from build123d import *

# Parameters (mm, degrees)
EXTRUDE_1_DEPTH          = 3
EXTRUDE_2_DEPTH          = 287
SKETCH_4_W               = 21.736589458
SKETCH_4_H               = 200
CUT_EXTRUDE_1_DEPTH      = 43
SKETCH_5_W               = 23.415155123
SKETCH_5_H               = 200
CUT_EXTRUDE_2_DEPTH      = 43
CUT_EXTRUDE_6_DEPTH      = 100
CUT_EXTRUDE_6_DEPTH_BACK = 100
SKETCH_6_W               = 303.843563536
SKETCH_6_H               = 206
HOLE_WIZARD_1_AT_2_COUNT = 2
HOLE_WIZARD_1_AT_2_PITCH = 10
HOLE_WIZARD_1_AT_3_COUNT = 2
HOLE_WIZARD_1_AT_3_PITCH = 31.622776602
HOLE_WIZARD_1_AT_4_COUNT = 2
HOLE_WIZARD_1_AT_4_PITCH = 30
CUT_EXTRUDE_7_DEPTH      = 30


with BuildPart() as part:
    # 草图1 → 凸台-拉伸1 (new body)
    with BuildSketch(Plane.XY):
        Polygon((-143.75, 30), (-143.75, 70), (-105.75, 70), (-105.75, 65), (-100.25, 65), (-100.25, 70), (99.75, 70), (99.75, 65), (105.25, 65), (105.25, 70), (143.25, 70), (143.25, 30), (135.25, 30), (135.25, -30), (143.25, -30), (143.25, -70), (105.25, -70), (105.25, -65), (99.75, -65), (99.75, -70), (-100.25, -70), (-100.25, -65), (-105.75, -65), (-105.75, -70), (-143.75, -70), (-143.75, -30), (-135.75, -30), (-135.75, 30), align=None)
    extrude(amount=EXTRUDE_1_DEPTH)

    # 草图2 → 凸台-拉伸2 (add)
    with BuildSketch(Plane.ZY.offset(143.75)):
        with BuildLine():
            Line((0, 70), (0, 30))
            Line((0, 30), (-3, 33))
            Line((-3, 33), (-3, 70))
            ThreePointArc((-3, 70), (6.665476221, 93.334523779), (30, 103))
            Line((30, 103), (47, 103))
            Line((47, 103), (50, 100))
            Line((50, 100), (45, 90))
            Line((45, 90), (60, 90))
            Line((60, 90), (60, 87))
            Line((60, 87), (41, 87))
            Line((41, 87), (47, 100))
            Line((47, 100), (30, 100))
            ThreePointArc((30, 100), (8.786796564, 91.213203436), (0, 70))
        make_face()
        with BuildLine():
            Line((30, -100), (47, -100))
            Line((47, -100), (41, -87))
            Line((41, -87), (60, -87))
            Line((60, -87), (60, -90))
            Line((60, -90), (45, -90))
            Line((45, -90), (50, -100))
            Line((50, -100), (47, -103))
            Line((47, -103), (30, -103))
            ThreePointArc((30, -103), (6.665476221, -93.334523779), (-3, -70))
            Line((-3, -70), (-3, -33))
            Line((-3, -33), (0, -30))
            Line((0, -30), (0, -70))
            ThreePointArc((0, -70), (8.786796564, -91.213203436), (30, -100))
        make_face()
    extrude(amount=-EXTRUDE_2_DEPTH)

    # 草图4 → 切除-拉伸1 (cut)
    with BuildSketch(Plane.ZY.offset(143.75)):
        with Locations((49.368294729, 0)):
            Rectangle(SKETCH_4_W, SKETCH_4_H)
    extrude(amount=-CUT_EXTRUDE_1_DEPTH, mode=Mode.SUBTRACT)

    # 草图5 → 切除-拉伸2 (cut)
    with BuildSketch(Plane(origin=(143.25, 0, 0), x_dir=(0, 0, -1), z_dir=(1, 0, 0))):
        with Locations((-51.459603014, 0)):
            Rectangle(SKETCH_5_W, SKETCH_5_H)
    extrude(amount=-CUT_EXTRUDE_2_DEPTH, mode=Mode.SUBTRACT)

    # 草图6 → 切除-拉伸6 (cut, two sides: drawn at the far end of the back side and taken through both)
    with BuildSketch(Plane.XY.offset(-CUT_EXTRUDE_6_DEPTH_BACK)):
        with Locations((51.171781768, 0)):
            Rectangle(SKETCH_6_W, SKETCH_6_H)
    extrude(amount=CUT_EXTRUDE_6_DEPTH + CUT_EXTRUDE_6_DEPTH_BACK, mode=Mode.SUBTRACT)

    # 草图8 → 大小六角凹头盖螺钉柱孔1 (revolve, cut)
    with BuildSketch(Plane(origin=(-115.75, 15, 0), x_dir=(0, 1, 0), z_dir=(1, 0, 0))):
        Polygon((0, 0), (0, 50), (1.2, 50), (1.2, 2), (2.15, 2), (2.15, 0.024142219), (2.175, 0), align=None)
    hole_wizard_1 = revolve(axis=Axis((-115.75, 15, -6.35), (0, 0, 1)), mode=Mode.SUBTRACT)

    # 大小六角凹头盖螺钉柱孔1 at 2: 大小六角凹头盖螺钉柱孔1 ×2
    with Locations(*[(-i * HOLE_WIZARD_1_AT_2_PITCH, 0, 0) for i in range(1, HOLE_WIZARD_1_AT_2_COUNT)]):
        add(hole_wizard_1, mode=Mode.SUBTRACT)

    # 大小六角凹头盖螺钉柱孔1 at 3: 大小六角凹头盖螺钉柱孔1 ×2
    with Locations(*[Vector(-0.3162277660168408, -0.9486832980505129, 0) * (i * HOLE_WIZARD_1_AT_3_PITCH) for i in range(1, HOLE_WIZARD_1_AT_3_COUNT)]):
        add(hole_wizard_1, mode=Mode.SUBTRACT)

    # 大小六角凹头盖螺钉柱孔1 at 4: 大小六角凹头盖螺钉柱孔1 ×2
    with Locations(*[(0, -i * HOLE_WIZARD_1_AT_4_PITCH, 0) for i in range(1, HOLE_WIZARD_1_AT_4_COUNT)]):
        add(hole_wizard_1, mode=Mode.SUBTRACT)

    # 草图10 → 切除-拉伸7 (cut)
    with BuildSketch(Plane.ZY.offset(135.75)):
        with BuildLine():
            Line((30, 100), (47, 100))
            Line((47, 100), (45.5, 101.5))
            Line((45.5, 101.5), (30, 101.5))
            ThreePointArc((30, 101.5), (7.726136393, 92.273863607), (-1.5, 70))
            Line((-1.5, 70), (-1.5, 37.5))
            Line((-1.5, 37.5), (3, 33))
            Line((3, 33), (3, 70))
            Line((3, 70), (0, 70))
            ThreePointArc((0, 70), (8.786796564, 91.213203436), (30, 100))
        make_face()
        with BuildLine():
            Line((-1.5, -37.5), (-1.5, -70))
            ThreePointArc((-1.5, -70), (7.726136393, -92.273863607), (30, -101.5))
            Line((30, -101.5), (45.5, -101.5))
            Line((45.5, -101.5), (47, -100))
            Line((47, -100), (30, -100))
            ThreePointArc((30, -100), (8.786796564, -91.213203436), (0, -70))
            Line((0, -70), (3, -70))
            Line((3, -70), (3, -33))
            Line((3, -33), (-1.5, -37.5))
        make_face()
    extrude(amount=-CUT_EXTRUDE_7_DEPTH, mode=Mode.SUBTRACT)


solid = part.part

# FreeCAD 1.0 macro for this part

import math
import FreeCAD as App
import Part
import Sketcher

V = App.Vector
Q = App.Units.Quantity

doc = App.newDocument("Part")
params = doc.addObject("Spreadsheet::Sheet", "Params")
for row, (alias, value) in enumerate([
    ("sketch1_width", "8 mm"),
    ("sketch1_width2", "38 mm"),
    ("sketch1_width3", "200 mm"),
    ("sketch1_height", "40 mm"),
    ("sketch1_height2", "60 mm"),
    ("pad1_length", "3 mm"),
    ("sketch2_radius", "30 mm"),
    ("sketch2_radius2", "33 mm"),
    ("sketch2_width", "40 mm"),
    ("sketch2_width2", "3 mm"),
    ("sketch2_height", "17 mm"),
    ("pad2_length", "287 mm"),
    ("sketch3_width", "200 mm"),
    ("pocket1_length", "43 mm"),
    ("sketch4_width", "200 mm"),
    ("pocket2_length", "43 mm"),
    ("sketch5_height", "206 mm"),
    ("sketch6_height", "50 mm"),
    ("sketch6_height2", "48 mm"),
    ("sketch6_width", "1.2 mm"),
    ("sketch6_width2", "0.95 mm"),
    ("groove_angle", "360 deg"),
    ("linearpattern_pitch", "10 mm"),
    ("linearpattern2_pitch", "31.622777 mm"),
    ("linearpattern3_pitch", "30 mm"),
    ("sketch7_radius", "30 mm"),
    ("sketch7_radius2", "31.5 mm"),
    ("sketch7_width", "37 mm"),
    ("sketch7_height", "17 mm"),
    ("sketch7_height2", "3 mm"),
    ("pocket4_length", "30 mm"),
], start=1):
    params.set(f"A{row}", alias)
    params.set(f"B{row}", "=" + value)
    params.setAlias(f"B{row}", alias)

body = doc.addObject("PartDesign::Body", "Body")

# Sketch on XY plane
sketch1 = doc.addObject("Sketcher::SketchObject", "Sketch")
body.addObject(sketch1)
sketch1.AttachmentSupport = (doc.XY_Plane, [""])
sketch1.MapMode = "FlatFace"
sketch1.addGeometry([
    Part.LineSegment(V(-143.75, 70, 0), V(-143.75, 30, 0)),  # 0
    Part.LineSegment(V(-143.75, 30, 0), V(-135.75, 30, 0)),  # 1
    Part.LineSegment(V(-135.75, 30, 0), V(-135.75, -30, 0)),  # 2
    Part.LineSegment(V(-135.75, -30, 0), V(-143.75, -30, 0)),  # 3
    Part.LineSegment(V(-143.75, -30, 0), V(-143.75, -70, 0)),  # 4
    Part.LineSegment(V(-143.75, -70, 0), V(-105.75, -70, 0)),  # 5
    Part.LineSegment(V(-105.75, -70, 0), V(-105.75, -65, 0)),  # 6
    Part.LineSegment(V(-105.75, -65, 0), V(-100.25, -65, 0)),  # 7
    Part.LineSegment(V(-100.25, -65, 0), V(-100.25, -70, 0)),  # 8
    Part.LineSegment(V(-100.25, -70, 0), V(99.75, -70, 0)),  # 9
    Part.LineSegment(V(99.75, -70, 0), V(99.75, -65, 0)),  # 10
    Part.LineSegment(V(99.75, -65, 0), V(105.25, -65, 0)),  # 11
    Part.LineSegment(V(105.25, -65, 0), V(105.25, -70, 0)),  # 12
    Part.LineSegment(V(105.25, -70, 0), V(143.25, -70, 0)),  # 13
    Part.LineSegment(V(143.25, -70, 0), V(143.25, -30, 0)),  # 14
    Part.LineSegment(V(143.25, -30, 0), V(135.25, -30, 0)),  # 15
    Part.LineSegment(V(135.25, -30, 0), V(135.25, 30, 0)),  # 16
    Part.LineSegment(V(135.25, 30, 0), V(143.25, 30, 0)),  # 17
    Part.LineSegment(V(143.25, 30, 0), V(143.25, 70, 0)),  # 18
    Part.LineSegment(V(143.25, 70, 0), V(105.25, 70, 0)),  # 19
    Part.LineSegment(V(105.25, 70, 0), V(105.25, 65, 0)),  # 20
    Part.LineSegment(V(105.25, 65, 0), V(99.75, 65, 0)),  # 21
    Part.LineSegment(V(99.75, 65, 0), V(99.75, 70, 0)),  # 22
    Part.LineSegment(V(99.75, 70, 0), V(-100.25, 70, 0)),  # 23
    Part.LineSegment(V(-100.25, 70, 0), V(-100.25, 65, 0)),  # 24
    Part.LineSegment(V(-100.25, 65, 0), V(-105.75, 65, 0)),  # 25
    Part.LineSegment(V(-105.75, 65, 0), V(-105.75, 70, 0)),  # 26
    Part.LineSegment(V(-105.75, 70, 0), V(-143.75, 70, 0)),  # 27
], False)
sketch1.addConstraint([
    Sketcher.Constraint("Coincident", 0, 2, 1, 1),
    Sketcher.Constraint("Coincident", 1, 2, 2, 1),
    Sketcher.Constraint("Coincident", 2, 2, 3, 1),
    Sketcher.Constraint("Coincident", 3, 2, 4, 1),
    Sketcher.Constraint("Coincident", 4, 2, 5, 1),
    Sketcher.Constraint("Coincident", 5, 2, 6, 1),
    Sketcher.Constraint("Coincident", 6, 2, 7, 1),
    Sketcher.Constraint("Coincident", 7, 2, 8, 1),
    Sketcher.Constraint("Coincident", 8, 2, 9, 1),
    Sketcher.Constraint("Coincident", 9, 2, 10, 1),
    Sketcher.Constraint("Coincident", 10, 2, 11, 1),
    Sketcher.Constraint("Coincident", 11, 2, 12, 1),
    Sketcher.Constraint("Coincident", 12, 2, 13, 1),
    Sketcher.Constraint("Coincident", 13, 2, 14, 1),
    Sketcher.Constraint("Coincident", 14, 2, 15, 1),
    Sketcher.Constraint("Coincident", 15, 2, 16, 1),
    Sketcher.Constraint("Coincident", 16, 2, 17, 1),
    Sketcher.Constraint("Coincident", 17, 2, 18, 1),
    Sketcher.Constraint("Coincident", 18, 2, 19, 1),
    Sketcher.Constraint("Coincident", 19, 2, 20, 1),
    Sketcher.Constraint("Coincident", 20, 2, 21, 1),
    Sketcher.Constraint("Coincident", 21, 2, 22, 1),
    Sketcher.Constraint("Coincident", 22, 2, 23, 1),
    Sketcher.Constraint("Coincident", 23, 2, 24, 1),
    Sketcher.Constraint("Coincident", 24, 2, 25, 1),
    Sketcher.Constraint("Coincident", 25, 2, 26, 1),
    Sketcher.Constraint("Coincident", 26, 2, 27, 1),
    Sketcher.Constraint("Coincident", 27, 2, 0, 1),
    Sketcher.Constraint("Vertical", 0),
    Sketcher.Constraint("Horizontal", 1),
    Sketcher.Constraint("Vertical", 2),
    Sketcher.Constraint("Horizontal", 3),
    Sketcher.Constraint("Vertical", 4),
    Sketcher.Constraint("Horizontal", 5),
    Sketcher.Constraint("Vertical", 6),
    Sketcher.Constraint("Horizontal", 7),
    Sketcher.Constraint("Vertical", 8),
    Sketcher.Constraint("Horizontal", 9),
    Sketcher.Constraint("Vertical", 10),
    Sketcher.Constraint("Horizontal", 11),
    Sketcher.Constraint("Vertical", 12),
    Sketcher.Constraint("Horizontal", 13),
    Sketcher.Constraint("Vertical", 14),
    Sketcher.Constraint("Horizontal", 15),
    Sketcher.Constraint("Vertical", 16),
    Sketcher.Constraint("Horizontal", 17),
    Sketcher.Constraint("Vertical", 18),
    Sketcher.Constraint("Horizontal", 19),
    Sketcher.Constraint("Vertical", 20),
    Sketcher.Constraint("Horizontal", 21),
    Sketcher.Constraint("Vertical", 22),
    Sketcher.Constraint("Horizontal", 23),
    Sketcher.Constraint("Vertical", 24),
    Sketcher.Constraint("Horizontal", 25),
    Sketcher.Constraint("Vertical", 26),
    Sketcher.Constraint("Horizontal", 27),
    Sketcher.Constraint("Symmetric", 0, 2, 3, 2, -1),
    Sketcher.Constraint("Symmetric", 14, 2, 17, 2, -1),
    Sketcher.Constraint("Symmetric", 12, 2, 19, 2, -1),
    Sketcher.Constraint("Symmetric", 10, 2, 21, 2, -1),
    Sketcher.Constraint("Symmetric", 8, 2, 23, 2, -1),
    Sketcher.Constraint("Symmetric", 6, 2, 25, 2, -1),
    Sketcher.Constraint("Horizontal", 5, 2, 8, 2),
    Sketcher.Constraint("Horizontal", 7, 2, 10, 2),
    Sketcher.Constraint("Horizontal", 9, 2, 12, 2),
    Sketcher.Constraint("Horizontal", 3, 2, 14, 2),
    Sketcher.Constraint("Horizontal", 23, 2, 26, 2),
    Sketcher.Constraint("Equal", 7, 11),
    Sketcher.Constraint("Equal", 5, 13),
    Sketcher.Constraint("Equal", 3, 15),
    Sketcher.Constraint("DistanceX", 1, 1, 1, 2, 8.0),
    Sketcher.Constraint("DistanceX", 5, 1, 5, 2, 38.0),
    Sketcher.Constraint("DistanceX", 9, 1, 9, 2, 200.0),
    Sketcher.Constraint("DistanceY", 0, 2, 0, 1, 40.0),
    Sketcher.Constraint("DistanceY", 2, 2, 2, 1, 60.0),
    Sketcher.Constraint("DistanceY", 6, 1, 6, 2, 5.0),
    Sketcher.Constraint("DistanceX", 7, 1, 7, 2, 5.5),
    Sketcher.Constraint("DistanceX", 0, 2, -1, 1, 143.75),
])
sketch1.setExpression("Constraints[70]", "Params.sketch1_width")
sketch1.setExpression("Constraints[71]", "Params.sketch1_width2")
sketch1.setExpression("Constraints[72]", "Params.sketch1_width3")
sketch1.setExpression("Constraints[73]", "Params.sketch1_height")
sketch1.setExpression("Constraints[74]", "Params.sketch1_height2")
pad1 = doc.addObject("PartDesign::Pad", "Pad")
body.addObject(pad1)
pad1.Profile = sketch1
pad1.setExpression("Length", "Params.pad1_length")

# Sketch on YZ plane
sketch2 = doc.addObject("Sketcher::SketchObject", "Sketch001")
body.addObject(sketch2)
sketch2.AttachmentSupport = (doc.YZ_Plane, [""])
sketch2.MapMode = "FlatFace"
sketch2.AttachmentOffset = App.Placement(V(0, 0, -143.75), App.Rotation())
sketch2.addGeometry([
    Part.LineSegment(V(30, 0, 0), V(70, 0, 0)),  # 0
    Part.ArcOfCircle(Part.Circle(V(70, 30, 0), V(0, 0, 1), 30), math.radians(-90), math.radians(0)),  # 1
    Part.LineSegment(V(100, 30, 0), V(100, 47, 0)),  # 2
    Part.LineSegment(V(100, 47, 0), V(87, 41, 0)),  # 3
    Part.LineSegment(V(87, 41, 0), V(87, 60, 0)),  # 4
    Part.LineSegment(V(87, 60, 0), V(90, 60, 0)),  # 5
    Part.LineSegment(V(90, 60, 0), V(90, 45, 0)),  # 6
    Part.LineSegment(V(90, 45, 0), V(100, 50, 0)),  # 7
    Part.LineSegment(V(100, 50, 0), V(103, 47, 0)),  # 8
    Part.LineSegment(V(103, 47, 0), V(103, 30, 0)),  # 9
    Part.ArcOfCircle(Part.Circle(V(70, 30, 0), V(0, 0, 1), 33), math.radians(-90), math.radians(0)),  # 10
    Part.LineSegment(V(70, -3, 0), V(33, -3, 0)),  # 11
    Part.LineSegment(V(33, -3, 0), V(30, 0, 0)),  # 12
    Part.LineSegment(V(-100, 47, 0), V(-100, 30, 0)),  # 13
    Part.ArcOfCircle(Part.Circle(V(-70, 30, 0), V(0, 0, 1), 30), math.radians(180), math.radians(270)),  # 14
    Part.LineSegment(V(-70, 0, 0), V(-30, 0, 0)),  # 15
    Part.LineSegment(V(-30, 0, 0), V(-33, -3, 0)),  # 16
    Part.LineSegment(V(-33, -3, 0), V(-70, -3, 0)),  # 17
    Part.ArcOfCircle(Part.Circle(V(-70, 30, 0), V(0, 0, 1), 33), math.radians(-180), math.radians(-90)),  # 18
    Part.LineSegment(V(-103, 30, 0), V(-103, 47, 0)),  # 19
    Part.LineSegment(V(-103, 47, 0), V(-100, 50, 0)),  # 20
    Part.LineSegment(V(-100, 50, 0), V(-90, 45, 0)),  # 21
    Part.LineSegment(V(-90, 45, 0), V(-90, 60, 0)),  # 22
    Part.LineSegment(V(-90, 60, 0), V(-87, 60, 0)),  # 23
    Part.LineSegment(V(-87, 60, 0), V(-87, 41, 0)),  # 24
    Part.LineSegment(V(-87, 41, 0), V(-100, 47, 0)),  # 25
], False)
sketch2.addConstraint([
    Sketcher.Constraint("Tangent", 0, 2, 1, 1),
    Sketcher.Constraint("Tangent", 1, 2, 2, 1),
    Sketcher.Constraint("Coincident", 2, 2, 3, 1),
    Sketcher.Constraint("Coincident", 3, 2, 4, 1),
    Sketcher.Constraint("Coincident", 4, 2, 5, 1),
    Sketcher.Constraint("Coincident", 5, 2, 6, 1),
    Sketcher.Constraint("Coincident", 6, 2, 7, 1),
    Sketcher.Constraint("Coincident", 7, 2, 8, 1),
    Sketcher.Constraint("Coincident", 8, 2, 9, 1),
    Sketcher.Constraint("Tangent", 9, 2, 10, 2),
    Sketcher.Constraint("Tangent", 10, 1, 11, 1),
    Sketcher.Constraint("Coincident", 11, 2, 12, 1),
    Sketcher.Constraint("Coincident", 12, 2, 0, 1),
    Sketcher.Constraint("Tangent", 13, 2, 14, 1),
    Sketcher.Constraint("Tangent", 14, 2, 15, 1),
    Sketcher.Constraint("Coincident", 15, 2, 16, 1),
    Sketcher.Constraint("Coincident", 16, 2, 17, 1),
    Sketcher.Constraint("Tangent", 17, 2, 18, 2),
    Sketcher.Constraint("Tangent", 18, 1, 19, 1),
    Sketcher.Constraint("Coincident", 19, 2, 20, 1),
    Sketcher.Constraint("Coincident", 20, 2, 21, 1),
    Sketcher.Constraint("Coincident", 21, 2, 22, 1),
    Sketcher.Constraint("Coincident", 22, 2, 23, 1),
    Sketcher.Constraint("Coincident", 23, 2, 24, 1),
    Sketcher.Constraint("Coincident", 24, 2, 25, 1),
    Sketcher.Constraint("Coincident", 25, 2, 13, 1),
    Sketcher.Constraint("Horizontal", 0),
    Sketcher.Constraint("Vertical", 2),
    Sketcher.Constraint("Vertical", 4),
    Sketcher.Constraint("Horizontal", 5),
    Sketcher.Constraint("Vertical", 6),
    Sketcher.Constraint("Vertical", 9),
    Sketcher.Constraint("Horizontal", 11),
    Sketcher.Constraint("Vertical", 13),
    Sketcher.Constraint("Horizontal", 15),
    Sketcher.Constraint("Horizontal", 17),
    Sketcher.Constraint("Vertical", 19),
    Sketcher.Constraint("Vertical", 22),
    Sketcher.Constraint("Horizontal", 23),
    Sketcher.Constraint("Vertical", 24),
    Sketcher.Constraint("Coincident", 10, 3, 1, 3),
    Sketcher.Constraint("Coincident", 18, 3, 14, 3),
    Sketcher.Constraint("Equal", 1, 14),
    Sketcher.Constraint("Equal", 10, 18),
    Sketcher.Constraint("Symmetric", 0, 2, 14, 2, -1, 1),
    Sketcher.Constraint("Symmetric", 12, 2, 15, 2, -2),
    Sketcher.Constraint("Symmetric", 7, 2, 20, 2, -2),
    Sketcher.Constraint("Symmetric", 6, 2, 21, 2, -2),
    Sketcher.Constraint("Symmetric", 4, 2, 23, 2, -2),
    Sketcher.Constraint("Parallel", 8, 12),
    Sketcher.Constraint("Perpendicular", 12, 16),
    Sketcher.Constraint("Parallel", 16, 20),
    Sketcher.Constraint("Horizontal", 2, 2, 8, 2),
    Sketcher.Constraint("Horizontal", 8, 2, 19, 2),
    Sketcher.Constraint("Horizontal", 3, 2, 24, 2),
    Sketcher.Constraint("Horizontal", 19, 2, 25, 2),
    Sketcher.Constraint("Vertical", 2, 2, 7, 2),
    Sketcher.Constraint("Radius", 1, 30.0),
    Sketcher.Constraint("Radius", 10, 33.0),
    Sketcher.Constraint("DistanceX", 0, 1, 0, 2, 40.0),
    Sketcher.Constraint("DistanceX", 5, 1, 5, 2, 3.0),
    Sketcher.Constraint("DistanceY", 2, 1, 2, 2, 17.0),
    Sketcher.Constraint("DistanceY", 4, 1, 4, 2, 19.0),
    Sketcher.Constraint("DistanceY", 6, 2, 6, 1, 15.0),
    Sketcher.Constraint("DistanceX", -1, 1, 1, 3, 70.0),
    Sketcher.Constraint("DistanceX", -1, 1, 3, 2, 87.0),
    Sketcher.Constraint("DistanceY", -1, 1, 3, 2, 41.0),
])
sketch2.setExpression("Constraints[57]", "Params.sketch2_radius")
sketch2.setExpression("Constraints[58]", "Params.sketch2_radius2")
sketch2.setExpression("Constraints[59]", "Params.sketch2_width")
sketch2.setExpression("Constraints[60]", "Params.sketch2_width2")
sketch2.setExpression("Constraints[61]", "Params.sketch2_height")
pad2 = doc.addObject("PartDesign::Pad", "Pad001")
body.addObject(pad2)
pad2.Profile = sketch2
pad2.setExpression("Length", "Params.pad2_length")

# Sketch on YZ plane
sketch3 = doc.addObject("Sketcher::SketchObject", "Sketch002")
body.addObject(sketch3)
sketch3.AttachmentSupport = (doc.YZ_Plane, [""])
sketch3.MapMode = "FlatFace"
sketch3.AttachmentOffset = App.Placement(V(0, 0, -143.75), App.Rotation())
sketch3.addGeometry([
    Part.LineSegment(V(100, 38.5, 0), V(-100, 38.5, 0)),
    Part.LineSegment(V(-100, 38.5, 0), V(-100, 60.236589, 0)),
    Part.LineSegment(V(-100, 60.236589, 0), V(100, 60.236589, 0)),
    Part.LineSegment(V(100, 60.236589, 0), V(100, 38.5, 0)),
], False)
sketch3.addConstraint([
    Sketcher.Constraint("Coincident", 0, 2, 1, 1),
    Sketcher.Constraint("Coincident", 1, 2, 2, 1),
    Sketcher.Constraint("Coincident", 2, 2, 3, 1),
    Sketcher.Constraint("Coincident", 3, 2, 0, 1),
    Sketcher.Constraint("Horizontal", 0),
    Sketcher.Constraint("Vertical", 1),
    Sketcher.Constraint("Horizontal", 2),
    Sketcher.Constraint("Vertical", 3),
    Sketcher.Constraint("DistanceX", 0, 2, 0, 1, 200.0),
    Sketcher.Constraint("DistanceX", 0, 2, -1, 1, 100.0),
    Sketcher.Constraint("DistanceY", -1, 1, 0, 2, 38.5),
    Sketcher.Constraint("DistanceY", 1, 1, 1, 2, 21.736589),
])
sketch3.setExpression("Constraints[8]", "Params.sketch3_width")
pocket1 = doc.addObject("PartDesign::Pocket", "Pocket")
body.addObject(pocket1)
pocket1.Profile = sketch3
pocket1.setExpression("Length", "Params.pocket1_length")
pocket1.Reversed = True

# Sketch on YZ plane
sketch4 = doc.addObject("Sketcher::SketchObject", "Sketch003")
body.addObject(sketch4)
sketch4.AttachmentSupport = (doc.YZ_Plane, [""])
sketch4.MapMode = "FlatFace"
sketch4.AttachmentOffset = App.Placement(V(0, 0, 143.25), App.Rotation())
sketch4.addGeometry([
    Part.LineSegment(V(100, 63.167181, 0), V(-100, 63.167181, 0)),
    Part.LineSegment(V(-100, 63.167181, 0), V(-100, 39.752025, 0)),
    Part.LineSegment(V(-100, 39.752025, 0), V(100, 39.752025, 0)),
    Part.LineSegment(V(100, 39.752025, 0), V(100, 63.167181, 0)),
], False)
sketch4.addConstraint([
    Sketcher.Constraint("Coincident", 0, 2, 1, 1),
    Sketcher.Constraint("Coincident", 1, 2, 2, 1),
    Sketcher.Constraint("Coincident", 2, 2, 3, 1),
    Sketcher.Constraint("Coincident", 3, 2, 0, 1),
    Sketcher.Constraint("Horizontal", 0),
    Sketcher.Constraint("Vertical", 1),
    Sketcher.Constraint("Horizontal", 2),
    Sketcher.Constraint("Vertical", 3),
    Sketcher.Constraint("DistanceX", 0, 2, 0, 1, 200.0),
    Sketcher.Constraint("DistanceX", 0, 2, -1, 1, 100.0),
    Sketcher.Constraint("DistanceY", 1, 2, 1, 1, 23.415155),
    Sketcher.Constraint("DistanceY", -1, 1, 0, 2, 63.167181),
])
sketch4.setExpression("Constraints[8]", "Params.sketch4_width")
pocket2 = doc.addObject("PartDesign::Pocket", "Pocket001")
body.addObject(pocket2)
pocket2.Profile = sketch4
pocket2.setExpression("Length", "Params.pocket2_length")

# Sketch on XY plane
sketch5 = doc.addObject("Sketcher::SketchObject", "Sketch004")
body.addObject(sketch5)
sketch5.AttachmentSupport = (doc.XY_Plane, [""])
sketch5.MapMode = "FlatFace"
sketch5.addGeometry([
    Part.LineSegment(V(-100.75, 103, 0), V(-100.75, -103, 0)),
    Part.LineSegment(V(-100.75, -103, 0), V(203.093564, -103, 0)),
    Part.LineSegment(V(203.093564, -103, 0), V(203.093564, 103, 0)),
    Part.LineSegment(V(203.093564, 103, 0), V(-100.75, 103, 0)),
], False)
sketch5.addConstraint([
    Sketcher.Constraint("Coincident", 0, 2, 1, 1),
    Sketcher.Constraint("Coincident", 1, 2, 2, 1),
    Sketcher.Constraint("Coincident", 2, 2, 3, 1),
    Sketcher.Constraint("Coincident", 3, 2, 0, 1),
    Sketcher.Constraint("Vertical", 0),
    Sketcher.Constraint("Horizontal", 1),
    Sketcher.Constraint("Vertical", 2),
    Sketcher.Constraint("Horizontal", 3),
    Sketcher.Constraint("DistanceY", 0, 2, 0, 1, 206.0),
    Sketcher.Constraint("DistanceY", 0, 2, -1, 1, 103.0),
    Sketcher.Constraint("DistanceX", 0, 2, -1, 1, 100.75),
    Sketcher.Constraint("DistanceX", 1, 1, 1, 2, 303.843564),
])
sketch5.setExpression("Constraints[8]", "Params.sketch5_height")
pocket3 = doc.addObject("PartDesign::Pocket", "Pocket002")
body.addObject(pocket3)
pocket3.Profile = sketch5
pocket3.Type = "ThroughAll"
pocket3.Midplane = True

# Sketch on YZ plane
sketch6 = doc.addObject("Sketcher::SketchObject", "Sketch005")
body.addObject(sketch6)
sketch6.AttachmentSupport = (doc.YZ_Plane, [""])
sketch6.MapMode = "FlatFace"
sketch6.AttachmentOffset = App.Placement(V(0, 0, -115.75), App.Rotation())
sketch6.addGeometry([
    Part.LineSegment(V(15, 50, 0), V(15, 0, 0)),  # 0
    Part.LineSegment(V(15, 0, 0), V(17.175, 0, 0)),  # 1
    Part.LineSegment(V(17.175, 0, 0), V(17.15, 0.024142, 0)),  # 2
    Part.LineSegment(V(17.15, 0.024142, 0), V(17.15, 2, 0)),  # 3
    Part.LineSegment(V(17.15, 2, 0), V(16.2, 2, 0)),  # 4
    Part.LineSegment(V(16.2, 2, 0), V(16.2, 50, 0)),  # 5
    Part.LineSegment(V(16.2, 50, 0), V(15, 50, 0)),  # 6
], False)
sketch6.addGeometry(Part.LineSegment(V(15, 0, 0), V(15, 50, 0)), True)  # axis
sketch6.addConstraint([
    Sketcher.Constraint("Coincident", 0, 2, 1, 1),
    Sketcher.Constraint("Coincident", 1, 2, 2, 1),
    Sketcher.Constraint("Coincident", 2, 2, 3, 1),
    Sketcher.Constraint("Coincident", 3, 2, 4, 1),
    Sketcher.Constraint("Coincident", 4, 2, 5, 1),
    Sketcher.Constraint("Coincident", 5, 2, 6, 1),
    Sketcher.Constraint("Coincident", 6, 2, 0, 1),
    Sketcher.Constraint("Vertical", 0),
    Sketcher.Constraint("Horizontal", 1),
    Sketcher.Constraint("Vertical", 3),
    Sketcher.Constraint("Horizontal", 4),
    Sketcher.Constraint("Vertical", 5),
    Sketcher.Constraint("Horizontal", 6),
    Sketcher.Constraint("Vertical", 7),
    Sketcher.Constraint("Coincident", 7, 1, 0, 2),
    Sketcher.Constraint("PointOnObject", 0, 2, -1),
    Sketcher.Constraint("Horizontal", 5, 2, 7, 2),
    Sketcher.Constraint("DistanceY", 0, 2, 0, 1, 50.0),
    Sketcher.Constraint("DistanceY", 5, 1, 5, 2, 48.0),
    Sketcher.Constraint("Angle", 2, Q("136 deg")),
    Sketcher.Constraint("DistanceX", 6, 2, 6, 1, 1.2),
    Sketcher.Constraint("DistanceX", -1, 1, 0, 2, 15.0),
    Sketcher.Constraint("DistanceX", 4, 2, 4, 1, 0.95),
    Sketcher.Constraint("DistanceX", 1, 1, 1, 2, 2.175),
])
sketch6.setExpression("Constraints[17]", "Params.sketch6_height")
sketch6.setExpression("Constraints[18]", "Params.sketch6_height2")
sketch6.setExpression("Constraints[20]", "Params.sketch6_width")
sketch6.setExpression("Constraints[22]", "Params.sketch6_width2")
groove = doc.addObject("PartDesign::Groove", "Groove")
body.addObject(groove)
groove.Profile = sketch6
groove.ReferenceAxis = (sketch6, ["Axis0"])
groove.setExpression("Angle", "Params.groove_angle")
doc.recompute()

linearpattern = doc.addObject("PartDesign::LinearPattern", "LinearPattern")
body.addObject(linearpattern)
linearpattern.Originals = [groove]
linearpattern.Direction = (doc.X_Axis, [""])
linearpattern.Mode = "offset"
linearpattern.setExpression("Offset", "Params.linearpattern_pitch")
linearpattern.Occurrences = 2
linearpattern.Reversed = True
body.Tip = linearpattern
doc.recompute()

datumline = doc.addObject("PartDesign::Line", "DatumLine")
body.addObject(datumline)
datumline.Placement = App.Placement(V(0, 0, 0), App.Rotation(V(0, 0, 1), V(-0.316227766, -0.948683298, 0)))
linearpattern2 = doc.addObject("PartDesign::LinearPattern", "LinearPattern001")
body.addObject(linearpattern2)
linearpattern2.Originals = [groove]
linearpattern2.Direction = (datumline, [""])
linearpattern2.Mode = "offset"
linearpattern2.setExpression("Offset", "Params.linearpattern2_pitch")
linearpattern2.Occurrences = 2
body.Tip = linearpattern2
doc.recompute()

linearpattern3 = doc.addObject("PartDesign::LinearPattern", "LinearPattern002")
body.addObject(linearpattern3)
linearpattern3.Originals = [groove]
linearpattern3.Direction = (doc.Y_Axis, [""])
linearpattern3.Mode = "offset"
linearpattern3.setExpression("Offset", "Params.linearpattern3_pitch")
linearpattern3.Occurrences = 2
linearpattern3.Reversed = True
body.Tip = linearpattern3

# Sketch on YZ plane
sketch7 = doc.addObject("Sketcher::SketchObject", "Sketch006")
body.addObject(sketch7)
sketch7.AttachmentSupport = (doc.YZ_Plane, [""])
sketch7.MapMode = "FlatFace"
sketch7.AttachmentOffset = App.Placement(V(0, 0, -135.75), App.Rotation())
sketch7.addGeometry([
    Part.LineSegment(V(100, 30, 0), V(100, 47, 0)),  # 0
    Part.LineSegment(V(100, 47, 0), V(101.5, 45.5, 0)),  # 1
    Part.LineSegment(V(101.5, 45.5, 0), V(101.5, 30, 0)),  # 2
    Part.ArcOfCircle(Part.Circle(V(70, 30, 0), V(0, 0, 1), 31.5), math.radians(-90), math.radians(0)),  # 3
    Part.LineSegment(V(70, -1.5, 0), V(37.5, -1.5, 0)),  # 4
    Part.LineSegment(V(37.5, -1.5, 0), V(33, 3, 0)),  # 5
    Part.LineSegment(V(33, 3, 0), V(70, 3, 0)),  # 6
    Part.LineSegment(V(70, 3, 0), V(70, 0, 0)),  # 7
    Part.ArcOfCircle(Part.Circle(V(70, 30, 0), V(0, 0, 1), 30), math.radians(-90), math.radians(0)),  # 8
    Part.LineSegment(V(-37.5, -1.5, 0), V(-70, -1.5, 0)),  # 9
    Part.ArcOfCircle(Part.Circle(V(-70, 30, 0), V(0, 0, 1), 31.5), math.radians(-180), math.radians(-90)),  # 10
    Part.LineSegment(V(-101.5, 30, 0), V(-101.5, 45.5, 0)),  # 11
    Part.LineSegment(V(-101.5, 45.5, 0), V(-100, 47, 0)),  # 12
    Part.LineSegment(V(-100, 47, 0), V(-100, 30, 0)),  # 13
    Part.ArcOfCircle(Part.Circle(V(-70, 30, 0), V(0, 0, 1), 30), math.radians(180), math.radians(270)),  # 14
    Part.LineSegment(V(-70, 0, 0), V(-70, 3, 0)),  # 15
    Part.LineSegment(V(-70, 3, 0), V(-33, 3, 0)),  # 16
    Part.LineSegment(V(-33, 3, 0), V(-37.5, -1.5, 0)),  # 17
], False)
sketch7.addConstraint([
    Sketcher.Constraint("Coincident", 0, 2, 1, 1),
    Sketcher.Constraint("Coincident", 1, 2, 2, 1),
    Sketcher.Constraint("Tangent", 2, 2, 3, 2),
    Sketcher.Constraint("Tangent", 3, 1, 4, 1),
    Sketcher.Constraint("Coincident", 4, 2, 5, 1),
    Sketcher.Constraint("Coincident", 5, 2, 6, 1),
    Sketcher.Constraint("Coincident", 6, 2, 7, 1),
    Sketcher.Constraint("Coincident", 7, 2, 8, 1),
    Sketcher.Constraint("Tangent", 8, 2, 0, 1),
    Sketcher.Constraint("Tangent", 9, 2, 10, 2),
    Sketcher.Constraint("Tangent", 10, 1, 11, 1),
    Sketcher.Constraint("Coincident", 11, 2, 12, 1),
    Sketcher.Constraint("Coincident", 12, 2, 13, 1),
    Sketcher.Constraint("Tangent", 13, 2, 14, 1),
    Sketcher.Constraint("Coincident", 14, 2, 15, 1),
    Sketcher.Constraint("Coincident", 15, 2, 16, 1),
    Sketcher.Constraint("Coincident", 16, 2, 17, 1),
    Sketcher.Constraint("Coincident", 17, 2, 9, 1),
    Sketcher.Constraint("Vertical", 0),
    Sketcher.Constraint("Vertical", 2),
    Sketcher.Constraint("Horizontal", 4),
    Sketcher.Constraint("Horizontal", 6),
    Sketcher.Constraint("Vertical", 7),
    Sketcher.Constraint("Horizontal", 9),
    Sketcher.Constraint("Vertical", 11),
    Sketcher.Constraint("Vertical", 13),
    Sketcher.Constraint("Vertical", 15),
    Sketcher.Constraint("Horizontal", 16),
    Sketcher.Constraint("Coincident", 8, 3, 3, 3),
    Sketcher.Constraint("Coincident", 14, 3, 10, 3),
    Sketcher.Constraint("Equal", 3, 10),
    Sketcher.Constraint("Equal", 8, 14),
    Sketcher.Constraint("Symmetric", 7, 2, 14, 2, -1, 1),
    Sketcher.Constraint("Symmetric", 3, 3, 10, 3, -2),
    Sketcher.Constraint("Symmetric", 5, 2, 16, 2, -2),
    Sketcher.Constraint("Parallel", 1, 5),
    Sketcher.Constraint("Perpendicular", 5, 12),
    Sketcher.Constraint("Parallel", 12, 17),
    Sketcher.Constraint("Horizontal", 1, 2, 11, 2),
    Sketcher.Constraint("Horizontal", 0, 2, 12, 2),
    Sketcher.Constraint("Vertical", 3, 1, 6, 2),
    Sketcher.Constraint("Radius", 8, 30.0),
    Sketcher.Constraint("Radius", 3, 31.5),
    Sketcher.Constraint("DistanceX", 6, 1, 6, 2, 37.0),
    Sketcher.Constraint("DistanceY", 0, 1, 0, 2, 17.0),
    Sketcher.Constraint("DistanceY", 7, 2, 7, 1, 3.0),
    Sketcher.Constraint("DistanceX", -1, 1, 3, 3, 70.0),
])
sketch7.setExpression("Constraints[41]", "Params.sketch7_radius")
sketch7.setExpression("Constraints[42]", "Params.sketch7_radius2")
sketch7.setExpression("Constraints[43]", "Params.sketch7_width")
sketch7.setExpression("Constraints[44]", "Params.sketch7_height")
sketch7.setExpression("Constraints[45]", "Params.sketch7_height2")
pocket4 = doc.addObject("PartDesign::Pocket", "Pocket003")
body.addObject(pocket4)
pocket4.Profile = sketch7
pocket4.setExpression("Length", "Params.pocket4_length")
pocket4.Reversed = True

doc.recompute()
